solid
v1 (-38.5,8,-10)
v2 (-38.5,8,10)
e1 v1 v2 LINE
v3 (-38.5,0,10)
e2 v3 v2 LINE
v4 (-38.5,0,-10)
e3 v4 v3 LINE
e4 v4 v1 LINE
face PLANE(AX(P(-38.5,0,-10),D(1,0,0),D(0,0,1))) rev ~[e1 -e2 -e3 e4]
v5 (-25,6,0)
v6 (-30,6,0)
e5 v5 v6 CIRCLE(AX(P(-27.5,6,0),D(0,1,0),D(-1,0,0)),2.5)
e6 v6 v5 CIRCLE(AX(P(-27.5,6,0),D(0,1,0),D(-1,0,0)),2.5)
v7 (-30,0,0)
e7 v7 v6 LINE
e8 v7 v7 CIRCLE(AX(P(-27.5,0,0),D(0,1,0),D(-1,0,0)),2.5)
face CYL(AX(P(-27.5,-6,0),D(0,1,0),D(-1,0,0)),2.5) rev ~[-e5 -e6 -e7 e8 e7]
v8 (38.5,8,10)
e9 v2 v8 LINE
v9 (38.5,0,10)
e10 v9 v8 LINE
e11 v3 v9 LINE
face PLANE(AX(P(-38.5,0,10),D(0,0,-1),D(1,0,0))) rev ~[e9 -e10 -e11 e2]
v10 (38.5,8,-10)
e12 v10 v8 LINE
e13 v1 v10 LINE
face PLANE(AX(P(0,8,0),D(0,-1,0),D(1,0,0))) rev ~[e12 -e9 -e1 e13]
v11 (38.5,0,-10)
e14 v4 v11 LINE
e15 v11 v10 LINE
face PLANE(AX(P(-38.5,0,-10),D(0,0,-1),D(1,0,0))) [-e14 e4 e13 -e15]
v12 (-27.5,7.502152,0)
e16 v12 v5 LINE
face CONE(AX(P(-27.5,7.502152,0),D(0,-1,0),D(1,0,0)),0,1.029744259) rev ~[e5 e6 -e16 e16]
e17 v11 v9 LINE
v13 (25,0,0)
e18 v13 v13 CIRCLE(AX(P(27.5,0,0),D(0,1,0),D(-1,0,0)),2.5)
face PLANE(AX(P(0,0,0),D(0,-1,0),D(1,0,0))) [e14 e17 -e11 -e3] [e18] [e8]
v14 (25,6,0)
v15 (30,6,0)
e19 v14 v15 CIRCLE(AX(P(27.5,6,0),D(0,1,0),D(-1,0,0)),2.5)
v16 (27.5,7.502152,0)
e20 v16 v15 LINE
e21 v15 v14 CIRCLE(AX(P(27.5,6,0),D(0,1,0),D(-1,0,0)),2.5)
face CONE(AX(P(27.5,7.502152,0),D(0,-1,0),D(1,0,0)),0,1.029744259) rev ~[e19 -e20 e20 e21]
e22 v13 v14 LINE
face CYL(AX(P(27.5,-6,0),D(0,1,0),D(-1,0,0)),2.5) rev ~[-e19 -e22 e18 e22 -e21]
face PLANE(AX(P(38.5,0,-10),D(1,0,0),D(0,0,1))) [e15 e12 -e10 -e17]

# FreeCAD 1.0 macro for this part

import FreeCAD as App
import Part
import Sketcher


def add_polygon(sketch, points):
    """Adds a closed chain of lines whose ends are joined by coincident constraints."""
    first, n = sketch.GeometryCount, len(points)
    for a, b in zip(points, points[1:] + points[:1]):
        sketch.addGeometry(Part.LineSegment(App.Vector(*a, 0), App.Vector(*b, 0)), False)
    for i in range(n):
        sketch.addConstraint(Sketcher.Constraint("Coincident", first + i, 2, first + (i + 1) % n, 1))

doc = App.newDocument("Part")
params = doc.addObject("Spreadsheet::Sheet", "Params")
for row, (alias, value) in enumerate([
    ("sketch1_width", "77 mm"),
    ("sketch1_height", "20 mm"),
    ("pad1_length", "8 mm"),
    ("sketch2_diameter", "5 mm"),
    ("hole_diameter", "5 mm"),
    ("hole_depth", "6 mm"),
], start=1):
    params.set(f"A{row}", alias)
    params.set(f"B{row}", "=" + value)
    params.setAlias(f"B{row}", alias)

body = doc.addObject("PartDesign::Body", "Body")

# Sketch on XZ plane
sketch1 = doc.addObject("Sketcher::SketchObject", "Sketch")
body.addObject(sketch1)
sketch1.AttachmentSupport = (doc.XZ_Plane, [""])
sketch1.MapMode = "FlatFace"
add_polygon(sketch1, [(-38, 10), (-38, -10), (38, -10), (38, 10)])  # lines 0-3
sketch1.addConstraint([
    Sketcher.Constraint("Vertical", 0),
    Sketcher.Constraint("Horizontal", 1),
    Sketcher.Constraint("Vertical", 2),
    Sketcher.Constraint("Horizontal", 3),
    Sketcher.Constraint("Symmetric", 0, 2, 2, 2, -1, 1),
    Sketcher.Constraint("DistanceX", 1, 1, 1, 2, 77.0),
    Sketcher.Constraint("DistanceY", 0, 2, 0, 1, 20.0),
])
sketch1.setExpression("Constraints[9]", "Params.sketch1_width")
sketch1.setExpression("Constraints[10]", "Params.sketch1_height")
pad1 = doc.addObject("PartDesign::Pad", "Pad")
body.addObject(pad1)
pad1.Profile = sketch1
pad1.setExpression("Length", "Params.pad1_length")
pad1.Reversed = True

# Sketch on XZ plane
sketch2 = doc.addObject("Sketcher::SketchObject", "Sketch001")
body.addObject(sketch2)
sketch2.AttachmentSupport = (doc.XZ_Plane, [""])
sketch2.MapMode = "FlatFace"
sketch2.addGeometry([
    Part.Circle(App.Vector(-27.5, 0, 0), App.Vector(0, 0, 1), 2.5),
    Part.Circle(App.Vector(27.5, 0, 0), App.Vector(0, 0, 1), 2.5),
], False)
sketch2.addConstraint([
    Sketcher.Constraint("Equal", 0, 1),
    Sketcher.Constraint("Symmetric", 0, 3, 1, 3, -1, 1),
    Sketcher.Constraint("PointOnObject", 0, 3, -1),
    Sketcher.Constraint("Diameter", 0, 5.0),
    Sketcher.Constraint("DistanceX", 0, 3, 1, 3, 55.0),
])
sketch2.setExpression("Constraints[3]", "Params.sketch2_diameter")
doc.recompute()
hole = doc.addObject("PartDesign::Hole", "Hole")
body.addObject(hole)
hole.Profile = sketch2
hole.ThreadType = "None"
hole.setExpression("Diameter", "Params.hole_diameter")
hole.DepthType = "Dimension"
hole.setExpression("Depth", "Params.hole_depth")
hole.DrillPoint = "Angled"
hole.DrillPointAngle = 118

doc.recompute()
